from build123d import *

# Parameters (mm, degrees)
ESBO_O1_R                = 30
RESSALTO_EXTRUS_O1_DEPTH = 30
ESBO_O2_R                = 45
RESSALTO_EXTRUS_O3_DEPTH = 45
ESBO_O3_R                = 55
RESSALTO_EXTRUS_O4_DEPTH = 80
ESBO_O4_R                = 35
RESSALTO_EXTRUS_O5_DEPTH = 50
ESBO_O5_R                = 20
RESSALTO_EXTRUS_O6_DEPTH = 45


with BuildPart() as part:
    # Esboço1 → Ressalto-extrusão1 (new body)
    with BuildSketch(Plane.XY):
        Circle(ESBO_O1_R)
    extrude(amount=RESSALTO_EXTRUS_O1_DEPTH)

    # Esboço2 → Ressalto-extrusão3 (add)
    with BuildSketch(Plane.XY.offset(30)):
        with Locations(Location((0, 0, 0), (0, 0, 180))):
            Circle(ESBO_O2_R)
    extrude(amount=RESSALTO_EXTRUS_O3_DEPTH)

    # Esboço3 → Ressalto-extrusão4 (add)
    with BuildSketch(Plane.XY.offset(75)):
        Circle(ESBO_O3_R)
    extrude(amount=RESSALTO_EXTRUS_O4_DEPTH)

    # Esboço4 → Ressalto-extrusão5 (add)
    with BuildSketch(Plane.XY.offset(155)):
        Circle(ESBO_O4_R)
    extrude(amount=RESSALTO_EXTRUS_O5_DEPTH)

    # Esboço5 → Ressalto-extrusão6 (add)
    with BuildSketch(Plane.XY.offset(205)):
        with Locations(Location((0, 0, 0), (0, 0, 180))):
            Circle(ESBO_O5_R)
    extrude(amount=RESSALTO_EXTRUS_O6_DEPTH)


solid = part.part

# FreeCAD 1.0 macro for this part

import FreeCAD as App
import Part
import Sketcher

V = App.Vector
Q = App.Units.Quantity

doc = App.newDocument("Part")
body = doc.addObject("PartDesign::Body", "Body")

sketch1 = body.newObject("Sketcher::SketchObject", "Sketch")
sketch1.AttachmentSupport = (doc.getObject("XY_Plane"), [""])
sketch1.MapMode = "FlatFace"
sketch1.addGeometry(Part.Circle(V(0, 0, 0), V(0, 0, 1), 30), False)
sketch1.addConstraint([
    Sketcher.Constraint("Coincident", 0, 3, -1, 1),
    Sketcher.Constraint("Diameter", 0, Q("60 mm")),
])
pad1 = body.newObject("PartDesign::Pad", "Pad")
pad1.Profile = sketch1
pad1.Length = 30

sketch2 = body.newObject("Sketcher::SketchObject", "Sketch001")
sketch2.AttachmentSupport = (doc.getObject("XY_Plane"), [""])
sketch2.MapMode = "FlatFace"
sketch2.AttachmentOffset = App.Placement(V(0, 0, 30), App.Rotation())
sketch2.addGeometry(Part.Circle(V(0, 0, 0), V(0, 0, 1), 45), False)
sketch2.addConstraint([
    Sketcher.Constraint("Coincident", 0, 3, -1, 1),
    Sketcher.Constraint("Diameter", 0, Q("90 mm")),
])
pad2 = body.newObject("PartDesign::Pad", "Pad001")
pad2.Profile = sketch2
pad2.Length = 45

sketch3 = body.newObject("Sketcher::SketchObject", "Sketch002")
sketch3.AttachmentSupport = (doc.getObject("XY_Plane"), [""])
sketch3.MapMode = "FlatFace"
sketch3.AttachmentOffset = App.Placement(V(0, 0, 75), App.Rotation())
sketch3.addGeometry(Part.Circle(V(0, 0, 0), V(0, 0, 1), 55), False)
sketch3.addConstraint([
    Sketcher.Constraint("Coincident", 0, 3, -1, 1),
    Sketcher.Constraint("Diameter", 0, Q("110 mm")),
])
pad3 = body.newObject("PartDesign::Pad", "Pad002")
pad3.Profile = sketch3
pad3.Length = 80

sketch4 = body.newObject("Sketcher::SketchObject", "Sketch003")
sketch4.AttachmentSupport = (doc.getObject("XY_Plane"), [""])
sketch4.MapMode = "FlatFace"
sketch4.AttachmentOffset = App.Placement(V(0, 0, 155), App.Rotation())
sketch4.addGeometry(Part.Circle(V(0, 0, 0), V(0, 0, 1), 35), False)
sketch4.addConstraint([
    Sketcher.Constraint("Coincident", 0, 3, -1, 1),
    Sketcher.Constraint("Diameter", 0, Q("70 mm")),
])
pad4 = body.newObject("PartDesign::Pad", "Pad003")
pad4.Profile = sketch4
pad4.Length = 50

sketch5 = body.newObject("Sketcher::SketchObject", "Sketch004")
sketch5.AttachmentSupport = (doc.getObject("XY_Plane"), [""])
sketch5.MapMode = "FlatFace"
sketch5.AttachmentOffset = App.Placement(V(0, 0, 205), App.Rotation())
sketch5.addGeometry(Part.Circle(V(0, 0, 0), V(0, 0, 1), 20), False)
sketch5.addConstraint([
    Sketcher.Constraint("Coincident", 0, 3, -1, 1),
    Sketcher.Constraint("Diameter", 0, Q("40 mm")),
])
pad5 = body.newObject("PartDesign::Pad", "Pad004")
pad5.Profile = sketch5
pad5.Length = 45

doc.recompute()
